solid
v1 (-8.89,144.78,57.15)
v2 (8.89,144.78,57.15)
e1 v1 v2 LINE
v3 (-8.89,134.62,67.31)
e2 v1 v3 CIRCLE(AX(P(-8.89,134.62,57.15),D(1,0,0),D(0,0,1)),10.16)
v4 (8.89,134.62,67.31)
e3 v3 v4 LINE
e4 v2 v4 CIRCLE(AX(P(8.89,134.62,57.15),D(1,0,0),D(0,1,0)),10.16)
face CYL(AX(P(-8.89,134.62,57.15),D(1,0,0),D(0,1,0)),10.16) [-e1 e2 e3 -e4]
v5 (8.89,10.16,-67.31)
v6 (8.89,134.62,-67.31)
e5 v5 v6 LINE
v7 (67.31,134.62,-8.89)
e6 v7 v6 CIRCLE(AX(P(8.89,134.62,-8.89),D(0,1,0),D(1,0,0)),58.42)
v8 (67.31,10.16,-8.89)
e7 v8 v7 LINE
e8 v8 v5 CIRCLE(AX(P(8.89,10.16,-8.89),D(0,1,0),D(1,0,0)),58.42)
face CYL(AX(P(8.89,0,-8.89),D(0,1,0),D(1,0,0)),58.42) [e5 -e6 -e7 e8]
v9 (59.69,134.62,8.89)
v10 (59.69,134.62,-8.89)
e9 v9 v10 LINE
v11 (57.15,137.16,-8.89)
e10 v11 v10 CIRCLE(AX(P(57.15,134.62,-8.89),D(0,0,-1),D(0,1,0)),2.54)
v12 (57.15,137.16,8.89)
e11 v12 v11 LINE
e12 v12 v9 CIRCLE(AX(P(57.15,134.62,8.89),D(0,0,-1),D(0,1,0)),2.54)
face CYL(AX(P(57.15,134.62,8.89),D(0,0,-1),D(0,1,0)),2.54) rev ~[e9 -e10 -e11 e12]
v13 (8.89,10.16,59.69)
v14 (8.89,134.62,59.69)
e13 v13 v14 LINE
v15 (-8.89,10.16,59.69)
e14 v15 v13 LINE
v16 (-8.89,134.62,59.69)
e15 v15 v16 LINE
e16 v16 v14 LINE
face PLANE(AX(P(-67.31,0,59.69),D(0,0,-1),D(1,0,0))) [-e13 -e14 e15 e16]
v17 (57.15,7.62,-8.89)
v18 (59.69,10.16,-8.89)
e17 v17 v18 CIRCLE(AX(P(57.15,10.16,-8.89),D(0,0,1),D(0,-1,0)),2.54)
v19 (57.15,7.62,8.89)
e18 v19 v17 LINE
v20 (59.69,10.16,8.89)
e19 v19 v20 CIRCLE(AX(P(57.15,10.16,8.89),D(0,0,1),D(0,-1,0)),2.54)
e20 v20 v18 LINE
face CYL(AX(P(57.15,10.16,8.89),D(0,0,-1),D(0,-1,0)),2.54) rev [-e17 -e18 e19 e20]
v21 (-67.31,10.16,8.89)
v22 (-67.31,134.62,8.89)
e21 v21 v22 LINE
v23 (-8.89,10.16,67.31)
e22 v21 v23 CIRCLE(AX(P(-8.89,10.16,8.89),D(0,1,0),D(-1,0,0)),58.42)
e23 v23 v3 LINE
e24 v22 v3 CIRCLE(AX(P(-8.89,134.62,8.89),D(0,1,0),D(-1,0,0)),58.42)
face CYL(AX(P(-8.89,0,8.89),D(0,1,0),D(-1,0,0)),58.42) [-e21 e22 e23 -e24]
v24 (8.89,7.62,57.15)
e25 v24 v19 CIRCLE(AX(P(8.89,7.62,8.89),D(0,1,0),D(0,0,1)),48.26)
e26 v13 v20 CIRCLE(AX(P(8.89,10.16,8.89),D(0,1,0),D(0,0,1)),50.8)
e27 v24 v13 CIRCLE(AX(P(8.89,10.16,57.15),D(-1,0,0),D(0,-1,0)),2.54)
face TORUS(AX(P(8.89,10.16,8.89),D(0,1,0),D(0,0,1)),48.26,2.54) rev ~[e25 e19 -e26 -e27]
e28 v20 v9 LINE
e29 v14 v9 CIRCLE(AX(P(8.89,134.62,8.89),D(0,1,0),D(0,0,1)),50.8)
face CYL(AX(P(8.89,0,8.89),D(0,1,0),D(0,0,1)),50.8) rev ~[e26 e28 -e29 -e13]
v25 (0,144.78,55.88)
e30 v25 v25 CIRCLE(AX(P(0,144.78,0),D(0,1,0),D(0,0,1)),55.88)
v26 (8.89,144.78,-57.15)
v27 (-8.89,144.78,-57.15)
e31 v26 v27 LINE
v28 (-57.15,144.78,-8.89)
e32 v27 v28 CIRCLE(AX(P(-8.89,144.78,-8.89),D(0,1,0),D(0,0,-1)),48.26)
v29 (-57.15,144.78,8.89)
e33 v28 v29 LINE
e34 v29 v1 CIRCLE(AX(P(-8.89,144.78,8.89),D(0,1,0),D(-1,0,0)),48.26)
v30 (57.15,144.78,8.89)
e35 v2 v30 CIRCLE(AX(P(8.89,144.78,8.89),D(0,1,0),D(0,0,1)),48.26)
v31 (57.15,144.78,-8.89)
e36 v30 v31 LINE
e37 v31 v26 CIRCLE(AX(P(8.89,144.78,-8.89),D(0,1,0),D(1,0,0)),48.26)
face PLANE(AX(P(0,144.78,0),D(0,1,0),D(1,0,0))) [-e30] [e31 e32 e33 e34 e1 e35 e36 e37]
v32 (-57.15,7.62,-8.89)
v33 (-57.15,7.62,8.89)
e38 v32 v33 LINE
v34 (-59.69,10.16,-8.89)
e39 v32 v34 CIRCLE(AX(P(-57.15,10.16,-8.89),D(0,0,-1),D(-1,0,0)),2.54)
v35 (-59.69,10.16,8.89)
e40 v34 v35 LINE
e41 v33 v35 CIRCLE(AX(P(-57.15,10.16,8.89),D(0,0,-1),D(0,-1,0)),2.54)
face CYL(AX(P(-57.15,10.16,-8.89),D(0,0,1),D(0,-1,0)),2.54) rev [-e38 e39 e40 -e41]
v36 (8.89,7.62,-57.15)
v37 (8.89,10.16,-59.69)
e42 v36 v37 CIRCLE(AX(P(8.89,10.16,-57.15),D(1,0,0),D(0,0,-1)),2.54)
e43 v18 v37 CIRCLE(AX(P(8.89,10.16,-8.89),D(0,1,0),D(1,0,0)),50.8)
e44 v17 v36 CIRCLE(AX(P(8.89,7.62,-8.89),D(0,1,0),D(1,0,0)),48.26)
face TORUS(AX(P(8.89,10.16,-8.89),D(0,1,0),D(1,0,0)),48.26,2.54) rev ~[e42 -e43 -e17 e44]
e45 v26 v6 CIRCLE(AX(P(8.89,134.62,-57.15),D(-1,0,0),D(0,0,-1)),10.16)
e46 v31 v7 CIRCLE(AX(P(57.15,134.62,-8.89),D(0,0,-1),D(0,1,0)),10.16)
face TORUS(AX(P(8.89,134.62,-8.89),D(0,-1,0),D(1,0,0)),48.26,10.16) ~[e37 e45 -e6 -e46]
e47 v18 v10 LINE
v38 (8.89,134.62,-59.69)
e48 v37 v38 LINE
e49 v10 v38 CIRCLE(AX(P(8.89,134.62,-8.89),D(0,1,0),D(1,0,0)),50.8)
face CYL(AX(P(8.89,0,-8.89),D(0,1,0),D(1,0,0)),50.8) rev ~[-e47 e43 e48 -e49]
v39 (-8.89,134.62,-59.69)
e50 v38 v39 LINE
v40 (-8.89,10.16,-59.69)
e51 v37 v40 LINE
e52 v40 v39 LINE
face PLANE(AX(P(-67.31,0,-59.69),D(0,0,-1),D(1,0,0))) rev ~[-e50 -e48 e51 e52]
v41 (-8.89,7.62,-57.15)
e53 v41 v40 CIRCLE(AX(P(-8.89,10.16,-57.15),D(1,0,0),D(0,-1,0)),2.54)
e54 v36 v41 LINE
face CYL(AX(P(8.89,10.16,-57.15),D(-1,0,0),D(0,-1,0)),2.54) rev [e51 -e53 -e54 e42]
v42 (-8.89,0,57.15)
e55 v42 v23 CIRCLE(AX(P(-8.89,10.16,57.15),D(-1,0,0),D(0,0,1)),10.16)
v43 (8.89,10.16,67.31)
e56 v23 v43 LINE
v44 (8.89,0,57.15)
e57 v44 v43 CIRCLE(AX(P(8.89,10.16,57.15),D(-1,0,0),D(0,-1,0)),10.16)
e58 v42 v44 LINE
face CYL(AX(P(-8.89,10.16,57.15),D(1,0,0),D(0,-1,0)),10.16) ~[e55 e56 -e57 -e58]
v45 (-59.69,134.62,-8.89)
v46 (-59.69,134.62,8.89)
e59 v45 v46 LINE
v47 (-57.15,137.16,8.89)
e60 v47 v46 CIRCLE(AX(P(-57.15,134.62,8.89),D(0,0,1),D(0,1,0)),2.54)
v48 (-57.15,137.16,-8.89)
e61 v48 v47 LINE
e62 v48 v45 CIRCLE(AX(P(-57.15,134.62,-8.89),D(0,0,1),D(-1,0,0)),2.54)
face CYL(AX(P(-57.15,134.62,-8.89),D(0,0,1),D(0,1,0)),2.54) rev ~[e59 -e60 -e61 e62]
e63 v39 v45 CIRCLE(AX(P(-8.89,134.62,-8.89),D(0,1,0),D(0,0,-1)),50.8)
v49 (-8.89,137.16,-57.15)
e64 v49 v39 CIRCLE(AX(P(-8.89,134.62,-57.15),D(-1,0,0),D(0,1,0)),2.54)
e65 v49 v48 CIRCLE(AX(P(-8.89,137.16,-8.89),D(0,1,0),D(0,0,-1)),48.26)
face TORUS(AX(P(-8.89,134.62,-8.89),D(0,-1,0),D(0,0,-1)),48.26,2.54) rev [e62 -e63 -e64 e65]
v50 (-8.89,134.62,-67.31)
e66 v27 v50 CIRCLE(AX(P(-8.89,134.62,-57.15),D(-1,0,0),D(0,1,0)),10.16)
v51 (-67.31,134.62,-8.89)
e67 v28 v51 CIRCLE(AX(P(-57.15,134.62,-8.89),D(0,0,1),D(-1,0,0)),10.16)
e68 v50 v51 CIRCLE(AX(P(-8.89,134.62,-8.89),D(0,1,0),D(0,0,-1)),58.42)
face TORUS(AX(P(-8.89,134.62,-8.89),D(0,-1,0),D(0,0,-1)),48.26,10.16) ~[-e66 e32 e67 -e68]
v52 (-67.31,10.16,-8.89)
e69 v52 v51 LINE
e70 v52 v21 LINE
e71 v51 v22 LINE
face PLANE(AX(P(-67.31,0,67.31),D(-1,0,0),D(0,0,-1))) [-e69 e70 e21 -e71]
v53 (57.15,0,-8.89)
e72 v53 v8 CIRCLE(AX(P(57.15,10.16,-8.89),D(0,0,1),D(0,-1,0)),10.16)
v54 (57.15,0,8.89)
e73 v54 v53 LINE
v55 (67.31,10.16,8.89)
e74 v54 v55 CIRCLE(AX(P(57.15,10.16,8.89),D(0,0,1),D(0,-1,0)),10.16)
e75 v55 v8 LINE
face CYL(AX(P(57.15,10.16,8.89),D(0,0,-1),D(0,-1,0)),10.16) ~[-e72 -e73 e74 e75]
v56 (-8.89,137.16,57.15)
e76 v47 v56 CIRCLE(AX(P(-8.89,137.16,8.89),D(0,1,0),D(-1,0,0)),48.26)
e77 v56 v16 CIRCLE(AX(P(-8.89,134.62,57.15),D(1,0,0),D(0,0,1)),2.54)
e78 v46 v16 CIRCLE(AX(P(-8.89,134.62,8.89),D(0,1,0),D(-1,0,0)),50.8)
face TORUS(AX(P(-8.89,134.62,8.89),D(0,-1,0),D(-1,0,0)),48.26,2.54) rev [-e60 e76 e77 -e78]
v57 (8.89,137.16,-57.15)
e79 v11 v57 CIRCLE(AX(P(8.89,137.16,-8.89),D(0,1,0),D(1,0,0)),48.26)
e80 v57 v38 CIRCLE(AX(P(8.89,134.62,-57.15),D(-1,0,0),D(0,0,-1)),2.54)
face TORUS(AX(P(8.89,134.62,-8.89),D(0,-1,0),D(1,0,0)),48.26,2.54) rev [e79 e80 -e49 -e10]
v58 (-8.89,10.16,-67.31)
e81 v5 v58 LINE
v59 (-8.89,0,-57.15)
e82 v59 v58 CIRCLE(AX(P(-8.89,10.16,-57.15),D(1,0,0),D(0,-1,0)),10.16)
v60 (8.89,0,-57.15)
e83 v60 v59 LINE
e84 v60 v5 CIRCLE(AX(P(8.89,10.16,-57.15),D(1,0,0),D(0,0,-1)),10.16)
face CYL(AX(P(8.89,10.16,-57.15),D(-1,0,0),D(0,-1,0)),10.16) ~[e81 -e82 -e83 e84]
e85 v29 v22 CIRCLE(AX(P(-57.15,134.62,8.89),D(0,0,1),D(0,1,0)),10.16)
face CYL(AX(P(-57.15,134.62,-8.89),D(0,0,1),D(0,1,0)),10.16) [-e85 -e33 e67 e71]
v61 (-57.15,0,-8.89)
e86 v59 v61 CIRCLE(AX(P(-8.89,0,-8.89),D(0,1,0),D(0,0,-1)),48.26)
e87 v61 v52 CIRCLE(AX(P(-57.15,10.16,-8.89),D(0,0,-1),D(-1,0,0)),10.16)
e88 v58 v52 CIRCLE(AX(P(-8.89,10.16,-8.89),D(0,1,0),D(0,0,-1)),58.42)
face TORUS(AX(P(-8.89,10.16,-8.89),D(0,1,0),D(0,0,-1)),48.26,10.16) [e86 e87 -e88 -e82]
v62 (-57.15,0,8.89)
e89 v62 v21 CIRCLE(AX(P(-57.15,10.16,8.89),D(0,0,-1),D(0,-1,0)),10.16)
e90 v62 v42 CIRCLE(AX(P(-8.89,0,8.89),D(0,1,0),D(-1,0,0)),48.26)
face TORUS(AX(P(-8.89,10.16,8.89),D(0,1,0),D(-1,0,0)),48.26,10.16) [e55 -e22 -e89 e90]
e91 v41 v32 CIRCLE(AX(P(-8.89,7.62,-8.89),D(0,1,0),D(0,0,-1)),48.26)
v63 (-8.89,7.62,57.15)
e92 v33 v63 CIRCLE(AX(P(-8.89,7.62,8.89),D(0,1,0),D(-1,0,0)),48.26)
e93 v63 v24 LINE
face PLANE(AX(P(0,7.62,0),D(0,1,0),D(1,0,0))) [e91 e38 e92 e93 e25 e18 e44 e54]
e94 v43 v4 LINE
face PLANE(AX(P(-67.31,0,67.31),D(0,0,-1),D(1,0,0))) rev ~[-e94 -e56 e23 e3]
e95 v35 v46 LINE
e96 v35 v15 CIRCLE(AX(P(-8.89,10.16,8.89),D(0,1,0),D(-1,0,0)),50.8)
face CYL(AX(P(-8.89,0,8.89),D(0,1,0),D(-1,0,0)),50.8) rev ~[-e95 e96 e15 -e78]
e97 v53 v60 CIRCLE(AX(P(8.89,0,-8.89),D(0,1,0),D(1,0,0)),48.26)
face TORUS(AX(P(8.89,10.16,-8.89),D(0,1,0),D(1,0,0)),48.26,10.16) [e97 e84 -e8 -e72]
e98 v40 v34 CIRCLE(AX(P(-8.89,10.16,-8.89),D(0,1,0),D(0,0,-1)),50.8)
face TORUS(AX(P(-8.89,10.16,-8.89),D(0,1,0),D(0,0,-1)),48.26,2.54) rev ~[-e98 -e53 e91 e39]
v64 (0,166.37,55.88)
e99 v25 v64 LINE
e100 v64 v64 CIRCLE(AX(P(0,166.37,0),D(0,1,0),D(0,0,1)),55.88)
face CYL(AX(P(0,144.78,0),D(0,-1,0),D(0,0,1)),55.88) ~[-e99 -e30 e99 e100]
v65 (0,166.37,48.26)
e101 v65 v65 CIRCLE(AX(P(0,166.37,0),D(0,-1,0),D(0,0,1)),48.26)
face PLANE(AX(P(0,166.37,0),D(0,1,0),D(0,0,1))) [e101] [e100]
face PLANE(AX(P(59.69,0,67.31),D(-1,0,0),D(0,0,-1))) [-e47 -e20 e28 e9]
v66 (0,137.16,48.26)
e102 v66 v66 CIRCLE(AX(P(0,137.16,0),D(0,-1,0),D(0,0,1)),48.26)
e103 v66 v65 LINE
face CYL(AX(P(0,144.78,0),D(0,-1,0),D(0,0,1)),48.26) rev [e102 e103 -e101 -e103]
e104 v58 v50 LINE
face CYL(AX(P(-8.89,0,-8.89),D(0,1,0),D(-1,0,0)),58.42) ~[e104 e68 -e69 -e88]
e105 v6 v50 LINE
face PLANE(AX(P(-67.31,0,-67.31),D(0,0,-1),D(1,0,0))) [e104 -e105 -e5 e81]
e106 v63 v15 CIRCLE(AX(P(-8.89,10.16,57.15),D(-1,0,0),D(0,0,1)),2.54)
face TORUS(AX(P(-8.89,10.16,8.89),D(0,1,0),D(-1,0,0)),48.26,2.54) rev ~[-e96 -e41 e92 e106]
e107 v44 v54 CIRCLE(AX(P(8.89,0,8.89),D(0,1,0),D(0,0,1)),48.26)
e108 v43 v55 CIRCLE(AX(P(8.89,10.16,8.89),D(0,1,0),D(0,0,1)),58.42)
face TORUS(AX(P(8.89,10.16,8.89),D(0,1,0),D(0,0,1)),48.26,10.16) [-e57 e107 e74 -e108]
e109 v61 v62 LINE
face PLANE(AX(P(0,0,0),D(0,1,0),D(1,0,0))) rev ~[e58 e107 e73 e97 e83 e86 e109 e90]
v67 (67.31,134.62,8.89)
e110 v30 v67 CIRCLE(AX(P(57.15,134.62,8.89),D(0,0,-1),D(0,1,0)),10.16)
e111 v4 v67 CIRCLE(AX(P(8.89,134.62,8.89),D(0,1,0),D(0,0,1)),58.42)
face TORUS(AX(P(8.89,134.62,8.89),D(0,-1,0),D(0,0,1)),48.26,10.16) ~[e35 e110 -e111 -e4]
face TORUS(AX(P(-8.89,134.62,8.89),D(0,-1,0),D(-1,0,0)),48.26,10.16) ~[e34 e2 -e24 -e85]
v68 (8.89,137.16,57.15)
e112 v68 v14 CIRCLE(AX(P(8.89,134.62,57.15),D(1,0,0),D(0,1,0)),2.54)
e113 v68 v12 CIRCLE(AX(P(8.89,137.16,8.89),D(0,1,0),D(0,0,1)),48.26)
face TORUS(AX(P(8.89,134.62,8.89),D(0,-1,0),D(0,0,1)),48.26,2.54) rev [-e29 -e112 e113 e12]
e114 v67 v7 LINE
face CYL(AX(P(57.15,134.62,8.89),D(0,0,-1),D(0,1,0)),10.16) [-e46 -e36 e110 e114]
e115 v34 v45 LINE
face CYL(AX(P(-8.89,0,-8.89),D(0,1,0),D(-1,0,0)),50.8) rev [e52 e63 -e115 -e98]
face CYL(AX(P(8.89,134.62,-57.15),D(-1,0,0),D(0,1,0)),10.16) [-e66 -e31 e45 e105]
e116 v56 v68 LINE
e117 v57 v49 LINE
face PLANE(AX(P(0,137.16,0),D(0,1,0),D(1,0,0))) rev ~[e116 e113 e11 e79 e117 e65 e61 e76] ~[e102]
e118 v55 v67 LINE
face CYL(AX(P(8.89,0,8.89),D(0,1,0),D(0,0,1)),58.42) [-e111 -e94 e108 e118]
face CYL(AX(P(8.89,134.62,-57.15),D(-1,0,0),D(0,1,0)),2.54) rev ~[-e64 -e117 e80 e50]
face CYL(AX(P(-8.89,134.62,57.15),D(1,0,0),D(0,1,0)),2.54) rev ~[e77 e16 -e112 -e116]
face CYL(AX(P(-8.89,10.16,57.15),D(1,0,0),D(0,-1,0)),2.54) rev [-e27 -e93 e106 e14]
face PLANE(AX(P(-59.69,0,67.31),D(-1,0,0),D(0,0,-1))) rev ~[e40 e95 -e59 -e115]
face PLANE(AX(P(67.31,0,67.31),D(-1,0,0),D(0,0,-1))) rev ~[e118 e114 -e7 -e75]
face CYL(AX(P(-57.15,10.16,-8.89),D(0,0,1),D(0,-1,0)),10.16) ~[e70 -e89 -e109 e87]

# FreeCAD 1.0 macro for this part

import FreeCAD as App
import Part
import Sketcher
from FreeCAD import Vector
Q = App.Units.Quantity


def edges_at(feature, points):
    """Names of the edges that pass closest to the given points."""
    edges = feature.Shape.Edges
    near = lambda p: min(range(len(edges)), key=lambda i: edges[i].distToShape(Part.Vertex(*p))[0])
    return sorted({f"Edge{near(p) + 1}" for p in points})


def faces_at(feature, points):
    """Names of the faces that lie closest to the given points."""
    faces = feature.Shape.Faces
    near = lambda p: min(range(len(faces)), key=lambda i: faces[i].distToShape(Part.Vertex(*p))[0])
    return sorted({f"Face{near(p) + 1}" for p in points})

doc = App.newDocument("Part")
body = doc.addObject("PartDesign::Body", "Body")

sketch1 = body.newObject("Sketcher::SketchObject", "Sketch")
sketch1.AttachmentSupport = (doc.getObject("XZ_Plane"), [""])
sketch1.MapMode = "FlatFace"
sketch1.addGeometry([
    Part.LineSegment(Vector(-67, -67, 0), Vector(-67, 67, 0)),
    Part.LineSegment(Vector(-67, 67, 0), Vector(67, 67, 0)),
    Part.LineSegment(Vector(67, 67, 0), Vector(67, -67, 0)),
    Part.LineSegment(Vector(67, -67, 0), Vector(-67, -67, 0)),
], False)
sketch1.addConstraint([
    Sketcher.Constraint("Coincident", 0, 2, 1, 1),
    Sketcher.Constraint("Coincident", 1, 2, 2, 1),
    Sketcher.Constraint("Coincident", 2, 2, 3, 1),
    Sketcher.Constraint("Coincident", 3, 2, 0, 1),
    Sketcher.Constraint("Vertical", 0),
    Sketcher.Constraint("Horizontal", 1),
    Sketcher.Constraint("Vertical", 2),
    Sketcher.Constraint("Horizontal", 3),
    Sketcher.Constraint("Symmetric", 0, 2, 2, 2, -1, 1),
    Sketcher.Constraint("Equal", 3, 0),
    Sketcher.Constraint("DistanceX", 1, 1, 1, 2, Q("5.3 in")),
])
pad1 = body.newObject("PartDesign::Pad", "Pad")
pad1.Profile = sketch1
pad1.Length = Q("5.7 in")
pad1.Reversed = True
doc.recompute()

fillet = body.newObject("PartDesign::Fillet", "Fillet")
fillet.Base = (pad1, edges_at(pad1, [
    (67.31, 72.39, 67.31),
    (-67.31, 72.39, 67.31),
    (-67.31, 72.39, -67.31),
    (67.31, 72.39, -67.31),
]))
fillet.Radius = Q("2.3 in")
doc.recompute()

fillet2 = body.newObject("PartDesign::Fillet", "Fillet001")
fillet2.Base = (fillet, edges_at(fillet, [
    (67.31, 0, 0),
    (67.31, 144.78, 0),
    (0, 0, 67.31),
    (-67.31, 0, 0),
    (0, 0, -67.31),
    (-50.199, 0, -50.199),
    (50.199, 0, -50.199),
    (-50.199, 0, 50.199),
    (50.199, 0, 50.199),
    (0, 144.78, 67.31),
    (0, 144.78, -67.31),
    (-67.31, 144.78, 0),
    (-50.199, 144.78, -50.199),
    (50.199, 144.78, -50.199),
    (-50.199, 144.78, 50.199),
    (50.199, 144.78, 50.199),
]))
fillet2.Radius = Q("0.4 in")

sketch2 = body.newObject("Sketcher::SketchObject", "Sketch001")
sketch2.AttachmentSupport = (doc.getObject("XZ_Plane"), [""])
sketch2.MapMode = "FlatFace"
sketch2.AttachmentOffset = App.Placement(Vector(0, 0, -5.7 * 25.4), App.Rotation())
sketch2.addGeometry(Part.Circle(Vector(0, 0, 0), Vector(0, 0, 1), 56), False)
sketch2.addConstraint([
    Sketcher.Constraint("Coincident", 0, 3, -1, 1),
    Sketcher.Constraint("Diameter", 0, Q("4.4 in")),
])
pad2 = body.newObject("PartDesign::Pad", "Pad001")
pad2.Profile = sketch2
pad2.Length = Q("0.85 in")
pad2.Reversed = True
doc.recompute()

thickness = body.newObject("PartDesign::Thickness", "Thickness")
thickness.Base = (pad2, faces_at(pad2, [(0, 166.37, 0)]))
thickness.Value = Q("0.3 in")
thickness.Reversed = True
thickness.Join = "Intersection"

doc.recompute()
